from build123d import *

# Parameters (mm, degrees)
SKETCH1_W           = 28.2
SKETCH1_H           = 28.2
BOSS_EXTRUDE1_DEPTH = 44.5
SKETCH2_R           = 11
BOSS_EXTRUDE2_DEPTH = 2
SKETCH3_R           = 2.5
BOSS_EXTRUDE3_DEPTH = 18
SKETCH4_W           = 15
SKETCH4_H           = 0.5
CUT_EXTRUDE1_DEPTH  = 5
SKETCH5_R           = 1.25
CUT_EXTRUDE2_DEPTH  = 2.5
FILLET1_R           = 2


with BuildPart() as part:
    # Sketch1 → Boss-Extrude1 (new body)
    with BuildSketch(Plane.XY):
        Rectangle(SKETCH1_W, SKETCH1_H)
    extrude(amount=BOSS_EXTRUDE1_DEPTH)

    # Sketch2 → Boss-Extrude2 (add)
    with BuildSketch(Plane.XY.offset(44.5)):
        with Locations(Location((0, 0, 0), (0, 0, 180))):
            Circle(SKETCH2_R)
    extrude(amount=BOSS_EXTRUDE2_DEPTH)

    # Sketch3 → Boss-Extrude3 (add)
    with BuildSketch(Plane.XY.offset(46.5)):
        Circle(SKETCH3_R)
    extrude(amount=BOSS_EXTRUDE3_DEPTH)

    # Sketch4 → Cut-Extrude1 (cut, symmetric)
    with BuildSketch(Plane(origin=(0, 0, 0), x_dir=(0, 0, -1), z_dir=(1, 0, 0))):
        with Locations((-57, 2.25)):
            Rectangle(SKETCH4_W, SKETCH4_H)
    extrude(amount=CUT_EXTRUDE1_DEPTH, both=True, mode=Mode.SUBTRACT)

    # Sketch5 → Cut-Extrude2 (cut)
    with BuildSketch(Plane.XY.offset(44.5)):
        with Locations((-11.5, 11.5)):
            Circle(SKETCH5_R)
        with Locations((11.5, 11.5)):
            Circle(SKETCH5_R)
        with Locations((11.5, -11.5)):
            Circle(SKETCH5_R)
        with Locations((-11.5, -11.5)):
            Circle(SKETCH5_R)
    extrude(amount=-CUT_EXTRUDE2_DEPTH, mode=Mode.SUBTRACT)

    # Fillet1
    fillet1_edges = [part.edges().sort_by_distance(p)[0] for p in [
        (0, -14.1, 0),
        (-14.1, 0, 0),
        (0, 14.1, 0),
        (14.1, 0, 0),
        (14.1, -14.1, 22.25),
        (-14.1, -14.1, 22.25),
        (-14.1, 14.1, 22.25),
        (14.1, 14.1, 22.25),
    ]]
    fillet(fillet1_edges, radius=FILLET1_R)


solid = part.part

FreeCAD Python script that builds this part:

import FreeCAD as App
import Part
import Sketcher

V = App.Vector
Q = App.Units.Quantity


def edges_at(feature, points):
    """Names of the edges that pass closest to the given points."""
    edges = feature.Shape.Edges
    near = lambda p: min(range(len(edges)), key=lambda i: edges[i].distToShape(Part.Vertex(*p))[0])
    return sorted({f"Edge{near(p) + 1}" for p in points})

doc = App.newDocument("Part")
params = doc.addObject("Spreadsheet::Sheet", "Params")
for row, (alias, value) in enumerate([
    ("sketch1_width", "28.2 mm"),
    ("pad1_length", "44.5 mm"),
    ("sketch2_diameter", "22 mm"),
    ("pad2_length", "2 mm"),
    ("sketch3_diameter", "5 mm"),
    ("pad3_length", "18 mm"),
    ("sketch4_height", "15 mm"),
    ("sketch4_width", "0.5 mm"),
    ("pocket1_length", "10 mm"),
    ("sketch5_diameter", "2.5 mm"),
    ("pocket2_length", "2.5 mm"),
    ("fillet_radius", "2 mm"),
], start=1):
    params.set(f"A{row}", alias)
    params.set(f"B{row}", "=" + value)
    params.setAlias(f"B{row}", alias)

body = doc.addObject("PartDesign::Body", "Body")

# Sketch on XY plane
sketch1 = body.newObject("Sketcher::SketchObject", "Sketch")
sketch1.AttachmentSupport = (doc.getObject("XY_Plane"), [""])
sketch1.MapMode = "FlatFace"
sketch1.addGeometry(Part.LineSegment(V(-14.1, 14.1, 0), V(-14.1, -14.1, 0)), False)
sketch1.addGeometry(Part.LineSegment(V(-14.1, -14.1, 0), V(14.1, -14.1, 0)), False)
sketch1.addGeometry(Part.LineSegment(V(14.1, -14.1, 0), V(14.1, 14.1, 0)), False)
sketch1.addGeometry(Part.LineSegment(V(14.1, 14.1, 0), V(-14.1, 14.1, 0)), False)
sketch1.addConstraint(Sketcher.Constraint("Coincident", 0, 2, 1, 1))
sketch1.addConstraint(Sketcher.Constraint("Coincident", 1, 2, 2, 1))
sketch1.addConstraint(Sketcher.Constraint("Coincident", 2, 2, 3, 1))
sketch1.addConstraint(Sketcher.Constraint("Coincident", 3, 2, 0, 1))
sketch1.addConstraint(Sketcher.Constraint("Vertical", 0))
sketch1.addConstraint(Sketcher.Constraint("Horizontal", 1))
sketch1.addConstraint(Sketcher.Constraint("Vertical", 2))
sketch1.addConstraint(Sketcher.Constraint("Horizontal", 3))
sketch1.addConstraint(Sketcher.Constraint("Symmetric", 0, 2, 2, 2, -1, 1))
sketch1.addConstraint(Sketcher.Constraint("Equal", 3, 0))
sketch1.addConstraint(Sketcher.Constraint("DistanceX", 1, 1, 1, 2, Q("28.2 mm")))
sketch1.setExpression("Constraints[10]", "Params.sketch1_width")
pad1 = body.newObject("PartDesign::Pad", "Pad")
pad1.Profile = sketch1
pad1.setExpression("Length", "Params.pad1_length")

# Sketch on XY plane
sketch2 = body.newObject("Sketcher::SketchObject", "Sketch001")
sketch2.AttachmentSupport = (doc.getObject("XY_Plane"), [""])
sketch2.MapMode = "FlatFace"
sketch2.AttachmentOffset = App.Placement(V(0, 0, 44.5), App.Rotation())
sketch2.addGeometry(Part.Circle(V(0, 0, 0), V(0, 0, 1), 11), False)
sketch2.addConstraint(Sketcher.Constraint("Coincident", 0, 3, -1, 1))
sketch2.addConstraint(Sketcher.Constraint("Diameter", 0, Q("22 mm")))
sketch2.setExpression("Constraints[1]", "Params.sketch2_diameter")
pad2 = body.newObject("PartDesign::Pad", "Pad001")
pad2.Profile = sketch2
pad2.setExpression("Length", "Params.pad2_length")

# Sketch on XY plane
sketch3 = body.newObject("Sketcher::SketchObject", "Sketch002")
sketch3.AttachmentSupport = (doc.getObject("XY_Plane"), [""])
sketch3.MapMode = "FlatFace"
sketch3.AttachmentOffset = App.Placement(V(0, 0, 46.5), App.Rotation())
sketch3.addGeometry(Part.Circle(V(0, 0, 0), V(0, 0, 1), 2.5), False)
sketch3.addConstraint(Sketcher.Constraint("Coincident", 0, 3, -1, 1))
sketch3.addConstraint(Sketcher.Constraint("Diameter", 0, Q("5 mm")))
sketch3.setExpression("Constraints[1]", "Params.sketch3_diameter")
pad3 = body.newObject("PartDesign::Pad", "Pad002")
pad3.Profile = sketch3
pad3.setExpression("Length", "Params.pad3_length")

# Sketch on YZ plane
sketch4 = body.newObject("Sketcher::SketchObject", "Sketch003")
sketch4.AttachmentSupport = (doc.getObject("YZ_Plane"), [""])
sketch4.MapMode = "FlatFace"
sketch4.addGeometry(Part.LineSegment(V(2.5, 64.5, 0), V(2, 64.5, 0)), False)
sketch4.addGeometry(Part.LineSegment(V(2, 64.5, 0), V(2, 49.5, 0)), False)
sketch4.addGeometry(Part.LineSegment(V(2, 49.5, 0), V(2.5, 49.5, 0)), False)
sketch4.addGeometry(Part.LineSegment(V(2.5, 49.5, 0), V(2.5, 64.5, 0)), False)
sketch4.addConstraint(Sketcher.Constraint("Coincident", 0, 2, 1, 1))
sketch4.addConstraint(Sketcher.Constraint("Coincident", 1, 2, 2, 1))
sketch4.addConstraint(Sketcher.Constraint("Coincident", 2, 2, 3, 1))
sketch4.addConstraint(Sketcher.Constraint("Coincident", 3, 2, 0, 1))
sketch4.addConstraint(Sketcher.Constraint("Horizontal", 0))
sketch4.addConstraint(Sketcher.Constraint("Vertical", 1))
sketch4.addConstraint(Sketcher.Constraint("Horizontal", 2))
sketch4.addConstraint(Sketcher.Constraint("Vertical", 3))
sketch4.addConstraint(Sketcher.Constraint("DistanceY", 1, 2, 1, 1, Q("15 mm")))
sketch4.addConstraint(Sketcher.Constraint("DistanceX", 0, 2, 0, 1, Q("0.5 mm")))
sketch4.addConstraint(Sketcher.Constraint("DistanceX", -1, 1, 0, 2, Q("2 mm")))
sketch4.addConstraint(Sketcher.Constraint("DistanceY", -1, 1, 0, 2, Q("64.5 mm")))
sketch4.setExpression("Constraints[8]", "Params.sketch4_height")
sketch4.setExpression("Constraints[9]", "Params.sketch4_width")
pocket1 = body.newObject("PartDesign::Pocket", "Pocket")
pocket1.Profile = sketch4
pocket1.setExpression("Length", "Params.pocket1_length")
pocket1.Midplane = True

# Sketch on XY plane
sketch5 = body.newObject("Sketcher::SketchObject", "Sketch004")
sketch5.AttachmentSupport = (doc.getObject("XY_Plane"), [""])
sketch5.MapMode = "FlatFace"
sketch5.AttachmentOffset = App.Placement(V(0, 0, 44.5), App.Rotation())
sketch5.addGeometry(Part.Circle(V(-11.5, 11.5, 0), V(0, 0, 1), 1.25), False)
sketch5.addGeometry(Part.Circle(V(11.5, 11.5, 0), V(0, 0, 1), 1.25), False)
sketch5.addGeometry(Part.Circle(V(11.5, -11.5, 0), V(0, 0, 1), 1.25), False)
sketch5.addGeometry(Part.Circle(V(-11.5, -11.5, 0), V(0, 0, 1), 1.25), False)
sketch5.addConstraint(Sketcher.Constraint("Equal", 0, 1))
sketch5.addConstraint(Sketcher.Constraint("Equal", 1, 2))
sketch5.addConstraint(Sketcher.Constraint("Equal", 2, 3))
sketch5.addConstraint(Sketcher.Constraint("Symmetric", 0, 3, 2, 3, -1, 1))
sketch5.addConstraint(Sketcher.Constraint("Symmetric", 1, 3, 3, 3, -1, 1))
sketch5.addConstraint(Sketcher.Constraint("Symmetric", 0, 3, 1, 3, -2))
sketch5.addConstraint(Sketcher.Constraint("Diameter", 0, Q("2.5 mm")))
sketch5.addConstraint(Sketcher.Constraint("DistanceX", 0, 3, 1, 3, Q("23 mm")))
sketch5.addConstraint(Sketcher.Constraint("DistanceY", 2, 3, 1, 3, Q("23 mm")))
sketch5.setExpression("Constraints[6]", "Params.sketch5_diameter")
pocket2 = body.newObject("PartDesign::Pocket", "Pocket001")
pocket2.Profile = sketch5
pocket2.setExpression("Length", "Params.pocket2_length")
doc.recompute()

fillet = body.newObject("PartDesign::Fillet", "Fillet")
fillet.Base = (pocket2, edges_at(pocket2, [
    (0, -14.1, 0),
    (-14.1, 0, 0),
    (0, 14.1, 0),
    (14.1, 0, 0),
    (14.1, -14.1, 22.25),
    (-14.1, -14.1, 22.25),
    (-14.1, 14.1, 22.25),
    (14.1, 14.1, 22.25),
]))
fillet.setExpression("Radius", "Params.fillet_radius")

doc.recompute()
